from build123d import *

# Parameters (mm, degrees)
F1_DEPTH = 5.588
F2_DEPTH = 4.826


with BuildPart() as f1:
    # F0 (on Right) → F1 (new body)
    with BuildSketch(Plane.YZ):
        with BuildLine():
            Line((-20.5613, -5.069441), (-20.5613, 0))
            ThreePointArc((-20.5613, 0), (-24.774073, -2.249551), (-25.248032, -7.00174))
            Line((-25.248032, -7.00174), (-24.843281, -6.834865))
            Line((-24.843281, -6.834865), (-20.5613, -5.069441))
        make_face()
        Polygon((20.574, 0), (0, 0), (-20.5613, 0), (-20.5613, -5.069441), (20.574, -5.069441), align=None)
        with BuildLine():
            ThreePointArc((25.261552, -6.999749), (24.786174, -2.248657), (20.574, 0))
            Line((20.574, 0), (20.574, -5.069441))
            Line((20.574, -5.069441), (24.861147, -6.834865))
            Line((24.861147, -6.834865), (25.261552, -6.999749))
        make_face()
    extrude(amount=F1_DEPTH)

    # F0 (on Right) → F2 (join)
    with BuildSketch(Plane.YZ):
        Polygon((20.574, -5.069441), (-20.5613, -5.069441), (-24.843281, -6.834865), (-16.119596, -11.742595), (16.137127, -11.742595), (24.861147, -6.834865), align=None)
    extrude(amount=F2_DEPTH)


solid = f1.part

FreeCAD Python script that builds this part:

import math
import FreeCAD as App
import Part
import Sketcher
from FreeCAD import Vector
Q = App.Units.Quantity

doc = App.newDocument("Part")
body = doc.addObject("PartDesign::Body", "Body")

# Sketch on YZ plane
sketch1 = doc.addObject("Sketcher::SketchObject", "Sketch")
body.addObject(sketch1)
sketch1.AttachmentSupport = (doc.YZ_Plane, [""])
sketch1.MapMode = "FlatFace"
sketch1.addGeometry([
    Part.ArcOfCircle(Part.Circle(Vector(-20.56, -5.07, 0), Vector(0, 0, 1), 5.07), math.radians(90), math.radians(202)),  # 0
    Part.LineSegment(Vector(-25.25, -7, 0), Vector(-24.84, -6.83, 0)),  # 1
    Part.LineSegment(Vector(-24.84, -6.83, 0), Vector(-20.56, -5.07, 0)),  # 2
    Part.LineSegment(Vector(-20.56, -5.07, 0), Vector(20.57, -5.07, 0)),  # 3
    Part.LineSegment(Vector(20.57, -5.07, 0), Vector(24.86, -6.83, 0)),  # 4
    Part.LineSegment(Vector(24.86, -6.83, 0), Vector(25.26, -7, 0)),  # 5
    Part.ArcOfCircle(Part.Circle(Vector(20.57, -5.07, 0), Vector(0, 0, 1), 5.07), math.radians(-22), math.radians(90)),  # 6
    Part.LineSegment(Vector(20.57, 0, 0), Vector(-20.56, 0, 0)),  # 7
], False)
sketch1.addConstraint([
    Sketcher.Constraint("Coincident", 0, 2, 1, 1),
    Sketcher.Constraint("Coincident", 1, 2, 2, 1),
    Sketcher.Constraint("Coincident", 2, 2, 3, 1),
    Sketcher.Constraint("Coincident", 3, 2, 4, 1),
    Sketcher.Constraint("Coincident", 4, 2, 5, 1),
    Sketcher.Constraint("Coincident", 5, 2, 6, 1),
    Sketcher.Constraint("Tangent", 6, 2, 7, 1),
    Sketcher.Constraint("Tangent", 7, 2, 0, 1),
    Sketcher.Constraint("Horizontal", 3),
    Sketcher.Constraint("Horizontal", 7),
    Sketcher.Constraint("Coincident", 2, 2, 0, 3),
    Sketcher.Constraint("Coincident", 3, 2, 6, 3),
    Sketcher.Constraint("PointOnObject", 6, 2, -1),
    Sketcher.Constraint("Parallel", 1, 2),
    Sketcher.Constraint("Parallel", 4, 5),
    Sketcher.Constraint("Horizontal", 1, 2, 4, 2),
    Sketcher.Constraint("DistanceX", -1, 1, 6, 3, Q("0.81 in")),
    Sketcher.Constraint("DistanceX", 3, 1, 3, 2, Q("1.6195 in")),
    Sketcher.Constraint("Radius", 0, Q("5.069441 mm")),
    Sketcher.Constraint("DistanceY", 0, 2, 0, 3, Q("1.932299 mm")),
    Sketcher.Constraint("Distance", 2, Q("4.631639 mm")),
    Sketcher.Constraint("DistanceX", -1, 1, 5, 2, Q("25.261552 mm")),
])
pad1 = doc.addObject("PartDesign::Pad", "Pad")
body.addObject(pad1)
pad1.Profile = sketch1
pad1.Length = Q("0.22 in")

# Sketch on YZ plane
sketch2 = doc.addObject("Sketcher::SketchObject", "Sketch001")
body.addObject(sketch2)
sketch2.AttachmentSupport = (doc.YZ_Plane, [""])
sketch2.MapMode = "FlatFace"
sketch2.addGeometry([
    Part.LineSegment(Vector(20.6, -5.1, 0), Vector(-20.6, -5.1, 0)),  # 0
    Part.LineSegment(Vector(-20.6, -5.1, 0), Vector(-24.8, -6.8, 0)),  # 1
    Part.LineSegment(Vector(-24.8, -6.8, 0), Vector(-16.1, -11.7, 0)),  # 2
    Part.LineSegment(Vector(-16.1, -11.7, 0), Vector(16.1, -11.7, 0)),  # 3
    Part.LineSegment(Vector(16.1, -11.7, 0), Vector(24.9, -6.8, 0)),  # 4
    Part.LineSegment(Vector(24.9, -6.8, 0), Vector(20.6, -5.1, 0)),  # 5
], False)
sketch2.addConstraint([
    Sketcher.Constraint("Coincident", 0, 2, 1, 1),
    Sketcher.Constraint("Coincident", 1, 2, 2, 1),
    Sketcher.Constraint("Coincident", 2, 2, 3, 1),
    Sketcher.Constraint("Coincident", 3, 2, 4, 1),
    Sketcher.Constraint("Coincident", 4, 2, 5, 1),
    Sketcher.Constraint("Coincident", 5, 2, 0, 1),
    Sketcher.Constraint("Horizontal", 0),
    Sketcher.Constraint("Horizontal", 3),
    Sketcher.Constraint("Horizontal", 1, 2, 4, 2),
    Sketcher.Constraint("DistanceX", -1, 1, 5, 2, Q("0.81 in")),
    Sketcher.Constraint("DistanceX", 0, 2, 0, 1, Q("1.6195 in")),
    Sketcher.Constraint("Distance", 1, Q("4.631639 mm")),
    Sketcher.Constraint("Distance", 2, Q("10.00942 mm")),
    Sketcher.Constraint("DistanceX", 3, 1, 3, 2, Q("32.256723 mm")),
    Sketcher.Constraint("DistanceY", 0, 2, -1, 1, Q("5.069441 mm")),
    Sketcher.Constraint("DistanceX", 1, 2, -1, 1, Q("24.843281 mm")),
    Sketcher.Constraint("DistanceY", 2, 2, 1, 2, Q("4.90773 mm")),
    Sketcher.Constraint("DistanceX", 3, 2, 4, 2, Q("8.72402 mm")),
])
pad2 = doc.addObject("PartDesign::Pad", "Pad001")
body.addObject(pad2)
pad2.Profile = sketch2
pad2.Length = Q("0.19 in")

doc.recompute()
